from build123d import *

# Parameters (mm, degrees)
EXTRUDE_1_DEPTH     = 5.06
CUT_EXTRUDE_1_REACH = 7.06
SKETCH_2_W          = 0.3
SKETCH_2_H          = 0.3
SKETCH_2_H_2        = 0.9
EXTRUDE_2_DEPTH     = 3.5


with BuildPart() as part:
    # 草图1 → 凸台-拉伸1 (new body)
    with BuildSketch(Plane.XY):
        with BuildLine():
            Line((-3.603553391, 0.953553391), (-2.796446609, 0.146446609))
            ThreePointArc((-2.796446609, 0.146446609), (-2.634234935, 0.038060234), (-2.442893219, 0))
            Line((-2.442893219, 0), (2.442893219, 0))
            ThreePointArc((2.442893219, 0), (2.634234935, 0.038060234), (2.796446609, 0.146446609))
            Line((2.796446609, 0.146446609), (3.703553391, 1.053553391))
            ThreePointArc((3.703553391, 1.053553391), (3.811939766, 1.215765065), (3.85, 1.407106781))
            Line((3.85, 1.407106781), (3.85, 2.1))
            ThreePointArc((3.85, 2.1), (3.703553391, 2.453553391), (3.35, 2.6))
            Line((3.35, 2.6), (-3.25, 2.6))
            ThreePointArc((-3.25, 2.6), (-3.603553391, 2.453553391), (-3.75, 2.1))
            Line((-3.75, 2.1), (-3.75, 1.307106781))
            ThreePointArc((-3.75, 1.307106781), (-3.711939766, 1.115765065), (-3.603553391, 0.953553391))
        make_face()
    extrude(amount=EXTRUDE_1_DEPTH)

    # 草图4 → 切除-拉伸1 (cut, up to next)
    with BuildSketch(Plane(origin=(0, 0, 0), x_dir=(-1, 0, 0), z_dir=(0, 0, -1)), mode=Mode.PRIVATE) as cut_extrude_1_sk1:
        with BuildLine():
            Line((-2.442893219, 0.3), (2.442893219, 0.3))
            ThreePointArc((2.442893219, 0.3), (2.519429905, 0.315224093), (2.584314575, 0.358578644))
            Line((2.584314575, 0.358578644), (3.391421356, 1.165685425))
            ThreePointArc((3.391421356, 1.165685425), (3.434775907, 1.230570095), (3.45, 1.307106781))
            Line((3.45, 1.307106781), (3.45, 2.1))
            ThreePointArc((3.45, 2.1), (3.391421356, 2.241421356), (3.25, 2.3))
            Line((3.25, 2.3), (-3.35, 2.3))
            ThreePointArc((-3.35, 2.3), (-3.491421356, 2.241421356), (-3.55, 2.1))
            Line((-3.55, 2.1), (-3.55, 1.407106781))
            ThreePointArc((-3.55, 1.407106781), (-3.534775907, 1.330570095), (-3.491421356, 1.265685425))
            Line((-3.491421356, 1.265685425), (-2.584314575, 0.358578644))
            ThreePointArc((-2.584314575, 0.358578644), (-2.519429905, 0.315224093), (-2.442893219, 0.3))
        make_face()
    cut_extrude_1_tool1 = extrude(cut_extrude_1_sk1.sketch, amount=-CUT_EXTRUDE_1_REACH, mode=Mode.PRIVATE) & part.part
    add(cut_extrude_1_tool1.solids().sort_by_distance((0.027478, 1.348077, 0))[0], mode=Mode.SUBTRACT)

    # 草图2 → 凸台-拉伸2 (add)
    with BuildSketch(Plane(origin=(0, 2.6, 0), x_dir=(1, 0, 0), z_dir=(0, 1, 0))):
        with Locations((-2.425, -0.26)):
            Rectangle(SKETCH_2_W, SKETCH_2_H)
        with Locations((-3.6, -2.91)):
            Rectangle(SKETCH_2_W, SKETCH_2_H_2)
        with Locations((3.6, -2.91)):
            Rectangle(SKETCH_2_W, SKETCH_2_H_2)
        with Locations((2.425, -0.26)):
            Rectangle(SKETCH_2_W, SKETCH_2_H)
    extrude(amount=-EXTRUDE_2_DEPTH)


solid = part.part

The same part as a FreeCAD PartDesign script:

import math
import FreeCAD as App
import Part
import Sketcher
from FreeCAD import Vector

doc = App.newDocument("Part")
body = doc.addObject("PartDesign::Body", "Body")

# Sketch on XY plane
sketch1 = doc.addObject("Sketcher::SketchObject", "Sketch")
body.addObject(sketch1)
sketch1.AttachmentSupport = (doc.XY_Plane, [""])
sketch1.MapMode = "FlatFace"
sketch1.addGeometry([
    Part.LineSegment(Vector(-3.6, 0.95, 0), Vector(-2.8, 0.15, 0)),  # 0
    Part.ArcOfCircle(Part.Circle(Vector(-2.44, 0.5, 0), Vector(0, 0, 1), 0.5), math.radians(-135), math.radians(-90)),  # 1
    Part.LineSegment(Vector(-2.44, 0, 0), Vector(2.44, 0, 0)),  # 2
    Part.ArcOfCircle(Part.Circle(Vector(2.44, 0.5, 0), Vector(0, 0, 1), 0.5), math.radians(-90), math.radians(-45)),  # 3
    Part.LineSegment(Vector(2.8, 0.15, 0), Vector(3.7, 1.05, 0)),  # 4
    Part.ArcOfCircle(Part.Circle(Vector(3.35, 1.41, 0), Vector(0, 0, 1), 0.5), math.radians(-45), math.radians(0)),  # 5
    Part.LineSegment(Vector(3.85, 1.41, 0), Vector(3.85, 2.1, 0)),  # 6
    Part.ArcOfCircle(Part.Circle(Vector(3.35, 2.1, 0), Vector(0, 0, 1), 0.5), math.radians(0), math.radians(90)),  # 7
    Part.LineSegment(Vector(3.35, 2.6, 0), Vector(-3.25, 2.6, 0)),  # 8
    Part.ArcOfCircle(Part.Circle(Vector(-3.25, 2.1, 0), Vector(0, 0, 1), 0.5), math.radians(90), math.radians(180)),  # 9
    Part.LineSegment(Vector(-3.75, 2.1, 0), Vector(-3.75, 1.31, 0)),  # 10
    Part.ArcOfCircle(Part.Circle(Vector(-3.25, 1.31, 0), Vector(0, 0, 1), 0.5), math.radians(-180), math.radians(-135)),  # 11
], False)
sketch1.addConstraint([
    Sketcher.Constraint("Tangent", 0, 2, 1, 1),
    Sketcher.Constraint("Tangent", 1, 2, 2, 1),
    Sketcher.Constraint("Tangent", 2, 2, 3, 1),
    Sketcher.Constraint("Tangent", 3, 2, 4, 1),
    Sketcher.Constraint("Tangent", 4, 2, 5, 1),
    Sketcher.Constraint("Tangent", 5, 2, 6, 1),
    Sketcher.Constraint("Tangent", 6, 2, 7, 1),
    Sketcher.Constraint("Tangent", 7, 2, 8, 1),
    Sketcher.Constraint("Tangent", 8, 2, 9, 1),
    Sketcher.Constraint("Tangent", 9, 2, 10, 1),
    Sketcher.Constraint("Tangent", 10, 2, 11, 1),
    Sketcher.Constraint("Tangent", 11, 2, 0, 1),
    Sketcher.Constraint("Horizontal", 2),
    Sketcher.Constraint("Vertical", 6),
    Sketcher.Constraint("Horizontal", 8),
    Sketcher.Constraint("Vertical", 10),
    Sketcher.Constraint("Equal", 1, 3),
    Sketcher.Constraint("Equal", 3, 5),
    Sketcher.Constraint("Equal", 5, 7),
    Sketcher.Constraint("Equal", 7, 9),
    Sketcher.Constraint("Equal", 9, 11),
    Sketcher.Constraint("Symmetric", 1, 2, 2, 2, -1, 1),
    Sketcher.Constraint("Perpendicular", 0, 4),
    Sketcher.Constraint("Horizontal", 0, 2, 3, 2),
    Sketcher.Constraint("Radius", 1, 0.5),
    Sketcher.Constraint("DistanceX", 8, 2, 8, 1, 6.6),
    Sketcher.Constraint("DistanceY", -1, 1, 7, 3, 2.1),
    Sketcher.Constraint("DistanceY", 11, 3, 5, 3, 0.1),
    Sketcher.Constraint("Distance", 0, 1.141421),
])
pad1 = doc.addObject("PartDesign::Pad", "Pad")
body.addObject(pad1)
pad1.Profile = sketch1
pad1.Length = 5.06

# Sketch on XY plane
sketch2 = doc.addObject("Sketcher::SketchObject", "Sketch001")
body.addObject(sketch2)
sketch2.AttachmentSupport = (doc.XY_Plane, [""])
sketch2.MapMode = "FlatFace"
sketch2.addGeometry([
    Part.LineSegment(Vector(2.44, 0.3, 0), Vector(-2.44, 0.3, 0)),  # 0
    Part.ArcOfCircle(Part.Circle(Vector(-2.44, 0.5, 0), Vector(0, 0, 1), 0.2), math.radians(-135), math.radians(-90)),  # 1
    Part.LineSegment(Vector(-2.58, 0.36, 0), Vector(-3.39, 1.17, 0)),  # 2
    Part.ArcOfCircle(Part.Circle(Vector(-3.25, 1.31, 0), Vector(0, 0, 1), 0.2), math.radians(180), math.radians(225)),  # 3
    Part.LineSegment(Vector(-3.45, 1.31, 0), Vector(-3.45, 2.1, 0)),  # 4
    Part.ArcOfCircle(Part.Circle(Vector(-3.25, 2.1, 0), Vector(0, 0, 1), 0.2), math.radians(90), math.radians(180)),  # 5
    Part.LineSegment(Vector(-3.25, 2.3, 0), Vector(3.35, 2.3, 0)),  # 6
    Part.ArcOfCircle(Part.Circle(Vector(3.35, 2.1, 0), Vector(0, 0, 1), 0.2), math.radians(0), math.radians(90)),  # 7
    Part.LineSegment(Vector(3.55, 2.1, 0), Vector(3.55, 1.41, 0)),  # 8
    Part.ArcOfCircle(Part.Circle(Vector(3.35, 1.41, 0), Vector(0, 0, 1), 0.2), math.radians(-45), math.radians(0)),  # 9
    Part.LineSegment(Vector(3.49, 1.27, 0), Vector(2.58, 0.36, 0)),  # 10
    Part.ArcOfCircle(Part.Circle(Vector(2.44, 0.5, 0), Vector(0, 0, 1), 0.2), math.radians(-90), math.radians(-45)),  # 11
], False)
sketch2.addConstraint([
    Sketcher.Constraint("Tangent", 0, 2, 1, 2),
    Sketcher.Constraint("Tangent", 1, 1, 2, 1),
    Sketcher.Constraint("Tangent", 2, 2, 3, 2),
    Sketcher.Constraint("Tangent", 3, 1, 4, 1),
    Sketcher.Constraint("Tangent", 4, 2, 5, 2),
    Sketcher.Constraint("Tangent", 5, 1, 6, 1),
    Sketcher.Constraint("Tangent", 6, 2, 7, 2),
    Sketcher.Constraint("Tangent", 7, 1, 8, 1),
    Sketcher.Constraint("Tangent", 8, 2, 9, 2),
    Sketcher.Constraint("Tangent", 9, 1, 10, 1),
    Sketcher.Constraint("Tangent", 10, 2, 11, 2),
    Sketcher.Constraint("Tangent", 11, 1, 0, 1),
    Sketcher.Constraint("Horizontal", 0),
    Sketcher.Constraint("Vertical", 4),
    Sketcher.Constraint("Horizontal", 6),
    Sketcher.Constraint("Vertical", 8),
    Sketcher.Constraint("Equal", 1, 3),
    Sketcher.Constraint("Equal", 3, 5),
    Sketcher.Constraint("Equal", 5, 7),
    Sketcher.Constraint("Equal", 7, 9),
    Sketcher.Constraint("Equal", 9, 11),
    Sketcher.Constraint("Symmetric", 1, 1, 10, 2, -2),
    Sketcher.Constraint("Perpendicular", 2, 10),
    Sketcher.Constraint("Radius", 1, 0.2),
    Sketcher.Constraint("DistanceX", 6, 1, 6, 2, 6.6),
    Sketcher.Constraint("DistanceY", 0, 2, 6, 2, 2.0),
    Sketcher.Constraint("DistanceY", -1, 1, 1, 3, 0.5),
    Sketcher.Constraint("DistanceY", 3, 3, 9, 3, 0.1),
    Sketcher.Constraint("Distance", 2, 1.141421),
])
pocket1 = doc.addObject("PartDesign::Pocket", "Pocket")
body.addObject(pocket1)
pocket1.Profile = sketch2
pocket1.Type = "UpToFirst"
pocket1.Reversed = True

# Sketch on XZ plane
sketch3 = doc.addObject("Sketcher::SketchObject", "Sketch002")
body.addObject(sketch3)
sketch3.AttachmentSupport = (doc.XZ_Plane, [""])
sketch3.MapMode = "FlatFace"
sketch3.AttachmentOffset = App.Placement(Vector(0, 0, -2.6), App.Rotation())
sketch3.addGeometry([
    Part.LineSegment(Vector(-2.58, 0.11, 0), Vector(-2.58, 0.41, 0)),  # 0
    Part.LineSegment(Vector(-2.58, 0.41, 0), Vector(-2.27, 0.41, 0)),  # 1
    Part.LineSegment(Vector(-2.27, 0.41, 0), Vector(-2.27, 0.11, 0)),  # 2
    Part.LineSegment(Vector(-2.27, 0.11, 0), Vector(-2.58, 0.11, 0)),  # 3
    Part.LineSegment(Vector(-3.75, 2.46, 0), Vector(-3.75, 3.36, 0)),  # 4
    Part.LineSegment(Vector(-3.75, 3.36, 0), Vector(-3.45, 3.36, 0)),  # 5
    Part.LineSegment(Vector(-3.45, 3.36, 0), Vector(-3.45, 2.46, 0)),  # 6
    Part.LineSegment(Vector(-3.45, 2.46, 0), Vector(-3.75, 2.46, 0)),  # 7
    Part.LineSegment(Vector(3.45, 2.46, 0), Vector(3.45, 3.36, 0)),  # 8
    Part.LineSegment(Vector(3.45, 3.36, 0), Vector(3.75, 3.36, 0)),  # 9
    Part.LineSegment(Vector(3.75, 3.36, 0), Vector(3.75, 2.46, 0)),  # 10
    Part.LineSegment(Vector(3.75, 2.46, 0), Vector(3.45, 2.46, 0)),  # 11
    Part.LineSegment(Vector(2.27, 0.11, 0), Vector(2.27, 0.41, 0)),  # 12
    Part.LineSegment(Vector(2.27, 0.41, 0), Vector(2.58, 0.41, 0)),  # 13
    Part.LineSegment(Vector(2.58, 0.41, 0), Vector(2.58, 0.11, 0)),  # 14
    Part.LineSegment(Vector(2.58, 0.11, 0), Vector(2.27, 0.11, 0)),  # 15
], False)
sketch3.addConstraint([
    Sketcher.Constraint("Coincident", 0, 2, 1, 1),
    Sketcher.Constraint("Coincident", 1, 2, 2, 1),
    Sketcher.Constraint("Coincident", 2, 2, 3, 1),
    Sketcher.Constraint("Coincident", 3, 2, 0, 1),
    Sketcher.Constraint("Coincident", 4, 2, 5, 1),
    Sketcher.Constraint("Coincident", 5, 2, 6, 1),
    Sketcher.Constraint("Coincident", 6, 2, 7, 1),
    Sketcher.Constraint("Coincident", 7, 2, 4, 1),
    Sketcher.Constraint("Coincident", 8, 2, 9, 1),
    Sketcher.Constraint("Coincident", 9, 2, 10, 1),
    Sketcher.Constraint("Coincident", 10, 2, 11, 1),
    Sketcher.Constraint("Coincident", 11, 2, 8, 1),
    Sketcher.Constraint("Coincident", 12, 2, 13, 1),
    Sketcher.Constraint("Coincident", 13, 2, 14, 1),
    Sketcher.Constraint("Coincident", 14, 2, 15, 1),
    Sketcher.Constraint("Coincident", 15, 2, 12, 1),
    Sketcher.Constraint("Vertical", 0),
    Sketcher.Constraint("Horizontal", 1),
    Sketcher.Constraint("Vertical", 2),
    Sketcher.Constraint("Horizontal", 3),
    Sketcher.Constraint("Vertical", 4),
    Sketcher.Constraint("Horizontal", 5),
    Sketcher.Constraint("Vertical", 6),
    Sketcher.Constraint("Horizontal", 7),
    Sketcher.Constraint("Vertical", 8),
    Sketcher.Constraint("Horizontal", 9),
    Sketcher.Constraint("Vertical", 10),
    Sketcher.Constraint("Horizontal", 11),
    Sketcher.Constraint("Vertical", 12),
    Sketcher.Constraint("Horizontal", 13),
    Sketcher.Constraint("Vertical", 14),
    Sketcher.Constraint("Horizontal", 15),
    Sketcher.Constraint("Symmetric", 5, 2, 8, 2, -2),
    Sketcher.Constraint("Symmetric", 7, 2, 10, 2, -2),
    Sketcher.Constraint("Symmetric", 1, 2, 12, 2, -2),
    Sketcher.Constraint("Symmetric", 3, 2, 14, 2, -2),
    Sketcher.Constraint("Equal", 3, 5),
    Sketcher.Constraint("Equal", 15, 0),
    Sketcher.Constraint("DistanceX", 1, 1, 1, 2, 0.3),
    Sketcher.Constraint("DistanceY", 4, 1, 4, 2, 0.9),
    Sketcher.Constraint("DistanceX", 5, 2, 8, 2, 6.9),
    Sketcher.Constraint("DistanceY", -1, 1, 0, 2, 0.41),
    Sketcher.Constraint("DistanceY", -1, 1, 4, 2, 3.36),
    Sketcher.Constraint("DistanceX", 1, 2, 12, 2, 4.55),
])
pad2 = doc.addObject("PartDesign::Pad", "Pad001")
body.addObject(pad2)
pad2.Profile = sketch3
pad2.Length = 3.5

doc.recompute()
